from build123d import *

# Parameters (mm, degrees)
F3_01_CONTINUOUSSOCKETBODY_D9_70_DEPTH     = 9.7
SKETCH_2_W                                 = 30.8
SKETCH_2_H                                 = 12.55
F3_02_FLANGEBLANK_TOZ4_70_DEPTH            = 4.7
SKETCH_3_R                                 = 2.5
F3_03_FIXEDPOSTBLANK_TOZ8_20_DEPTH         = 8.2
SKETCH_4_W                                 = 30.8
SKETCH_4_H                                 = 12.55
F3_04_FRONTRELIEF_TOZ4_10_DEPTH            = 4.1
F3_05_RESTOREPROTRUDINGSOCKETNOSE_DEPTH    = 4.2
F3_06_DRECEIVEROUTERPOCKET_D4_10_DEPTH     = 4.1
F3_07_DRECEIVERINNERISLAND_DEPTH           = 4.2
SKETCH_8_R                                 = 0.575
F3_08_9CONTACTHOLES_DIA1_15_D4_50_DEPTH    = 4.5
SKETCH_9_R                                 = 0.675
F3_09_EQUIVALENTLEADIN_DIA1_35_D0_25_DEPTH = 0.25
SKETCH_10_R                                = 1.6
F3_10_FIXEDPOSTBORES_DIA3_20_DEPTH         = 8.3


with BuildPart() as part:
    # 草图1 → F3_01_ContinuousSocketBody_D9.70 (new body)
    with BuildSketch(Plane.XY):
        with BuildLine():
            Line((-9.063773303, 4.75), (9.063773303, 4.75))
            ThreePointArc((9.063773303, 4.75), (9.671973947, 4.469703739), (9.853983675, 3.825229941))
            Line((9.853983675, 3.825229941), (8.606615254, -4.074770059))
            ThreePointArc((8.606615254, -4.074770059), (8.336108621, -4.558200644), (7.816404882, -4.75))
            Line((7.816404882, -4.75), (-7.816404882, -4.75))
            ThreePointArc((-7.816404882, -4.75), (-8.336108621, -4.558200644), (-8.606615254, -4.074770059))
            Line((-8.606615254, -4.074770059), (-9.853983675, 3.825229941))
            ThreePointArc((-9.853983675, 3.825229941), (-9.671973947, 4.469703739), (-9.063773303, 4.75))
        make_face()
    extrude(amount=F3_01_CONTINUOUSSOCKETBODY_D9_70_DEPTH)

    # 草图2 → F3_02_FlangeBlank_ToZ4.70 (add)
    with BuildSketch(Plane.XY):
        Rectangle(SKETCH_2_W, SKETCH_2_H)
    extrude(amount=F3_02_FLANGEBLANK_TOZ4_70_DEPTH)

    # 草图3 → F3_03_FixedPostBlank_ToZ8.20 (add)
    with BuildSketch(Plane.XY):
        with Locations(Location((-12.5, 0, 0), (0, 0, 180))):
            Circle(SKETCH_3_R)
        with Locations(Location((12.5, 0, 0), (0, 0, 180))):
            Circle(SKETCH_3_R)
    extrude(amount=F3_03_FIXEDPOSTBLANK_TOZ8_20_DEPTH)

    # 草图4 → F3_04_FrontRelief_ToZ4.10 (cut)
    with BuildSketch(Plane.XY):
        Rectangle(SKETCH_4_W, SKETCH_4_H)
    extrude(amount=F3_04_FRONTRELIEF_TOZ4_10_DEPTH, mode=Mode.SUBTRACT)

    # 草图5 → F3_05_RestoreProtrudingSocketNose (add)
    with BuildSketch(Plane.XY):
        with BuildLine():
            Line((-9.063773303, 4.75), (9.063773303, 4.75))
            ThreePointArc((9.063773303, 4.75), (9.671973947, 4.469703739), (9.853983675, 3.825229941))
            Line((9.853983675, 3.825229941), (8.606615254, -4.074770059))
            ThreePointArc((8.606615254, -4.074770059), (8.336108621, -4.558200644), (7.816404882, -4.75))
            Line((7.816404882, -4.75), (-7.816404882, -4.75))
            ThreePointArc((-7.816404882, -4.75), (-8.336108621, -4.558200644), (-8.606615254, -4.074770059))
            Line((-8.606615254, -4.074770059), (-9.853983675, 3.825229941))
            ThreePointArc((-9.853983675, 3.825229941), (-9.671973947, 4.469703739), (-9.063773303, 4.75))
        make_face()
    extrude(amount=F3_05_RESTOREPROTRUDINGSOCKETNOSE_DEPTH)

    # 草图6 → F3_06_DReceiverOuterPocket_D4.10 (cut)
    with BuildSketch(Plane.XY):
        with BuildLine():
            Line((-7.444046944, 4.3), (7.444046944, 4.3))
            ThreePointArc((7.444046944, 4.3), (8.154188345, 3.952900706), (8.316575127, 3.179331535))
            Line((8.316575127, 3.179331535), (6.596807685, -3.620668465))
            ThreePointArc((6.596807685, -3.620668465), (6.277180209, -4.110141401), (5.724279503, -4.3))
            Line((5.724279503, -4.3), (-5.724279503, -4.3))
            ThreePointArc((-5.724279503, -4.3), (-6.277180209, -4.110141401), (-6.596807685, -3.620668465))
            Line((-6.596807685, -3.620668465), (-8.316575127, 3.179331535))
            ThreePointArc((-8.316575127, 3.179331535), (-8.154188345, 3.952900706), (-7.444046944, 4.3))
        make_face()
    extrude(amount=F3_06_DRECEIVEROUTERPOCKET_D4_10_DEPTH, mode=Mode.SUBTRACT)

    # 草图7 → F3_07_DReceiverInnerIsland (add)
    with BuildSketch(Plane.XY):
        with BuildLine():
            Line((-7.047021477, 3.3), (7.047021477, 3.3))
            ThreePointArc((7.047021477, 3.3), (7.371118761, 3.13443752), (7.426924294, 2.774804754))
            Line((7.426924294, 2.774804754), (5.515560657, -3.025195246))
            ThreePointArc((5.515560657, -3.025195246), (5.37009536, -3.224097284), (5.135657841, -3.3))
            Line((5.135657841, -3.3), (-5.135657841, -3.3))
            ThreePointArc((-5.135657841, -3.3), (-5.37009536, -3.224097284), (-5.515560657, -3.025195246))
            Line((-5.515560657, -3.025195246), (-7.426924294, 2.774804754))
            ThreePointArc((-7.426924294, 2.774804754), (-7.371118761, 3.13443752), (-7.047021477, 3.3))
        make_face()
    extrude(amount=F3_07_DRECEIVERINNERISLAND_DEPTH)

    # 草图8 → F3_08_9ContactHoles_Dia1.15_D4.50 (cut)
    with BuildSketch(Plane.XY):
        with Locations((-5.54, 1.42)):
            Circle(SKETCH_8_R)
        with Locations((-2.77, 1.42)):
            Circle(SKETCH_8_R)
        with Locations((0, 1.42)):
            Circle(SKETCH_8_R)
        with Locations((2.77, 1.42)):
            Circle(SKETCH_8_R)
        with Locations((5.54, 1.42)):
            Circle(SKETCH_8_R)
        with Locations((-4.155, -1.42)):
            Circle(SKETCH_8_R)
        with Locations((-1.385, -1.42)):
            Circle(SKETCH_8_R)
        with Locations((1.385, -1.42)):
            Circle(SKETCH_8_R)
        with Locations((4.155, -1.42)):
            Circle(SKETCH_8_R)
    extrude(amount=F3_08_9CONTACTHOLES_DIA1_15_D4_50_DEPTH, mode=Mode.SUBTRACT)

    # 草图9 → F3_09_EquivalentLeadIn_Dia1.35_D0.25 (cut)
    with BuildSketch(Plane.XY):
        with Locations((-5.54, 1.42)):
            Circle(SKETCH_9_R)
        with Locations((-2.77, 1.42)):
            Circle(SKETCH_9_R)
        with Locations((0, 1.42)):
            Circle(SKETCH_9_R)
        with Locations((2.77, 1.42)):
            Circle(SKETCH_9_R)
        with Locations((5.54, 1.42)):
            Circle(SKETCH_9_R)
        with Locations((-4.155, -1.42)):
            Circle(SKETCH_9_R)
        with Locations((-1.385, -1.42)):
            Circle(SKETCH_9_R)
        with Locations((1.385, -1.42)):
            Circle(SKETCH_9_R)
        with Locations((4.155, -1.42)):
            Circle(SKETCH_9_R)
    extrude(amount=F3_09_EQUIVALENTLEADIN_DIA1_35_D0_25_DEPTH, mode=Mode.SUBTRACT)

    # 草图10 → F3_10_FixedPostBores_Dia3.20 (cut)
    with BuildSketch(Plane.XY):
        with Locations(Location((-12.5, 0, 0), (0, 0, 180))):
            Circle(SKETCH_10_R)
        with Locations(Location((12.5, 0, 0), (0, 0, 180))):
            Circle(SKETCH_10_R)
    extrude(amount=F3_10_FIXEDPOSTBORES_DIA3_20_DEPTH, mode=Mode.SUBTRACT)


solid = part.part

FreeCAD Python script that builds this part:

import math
import FreeCAD as App
import Part
import Sketcher


def add_polygon(sketch, points):
    """Adds a closed chain of lines whose ends are joined by coincident constraints."""
    first, n = sketch.GeometryCount, len(points)
    for a, b in zip(points, points[1:] + points[:1]):
        sketch.addGeometry(Part.LineSegment(App.Vector(*a, 0), App.Vector(*b, 0)), False)
    for i in range(n):
        sketch.addConstraint(Sketcher.Constraint("Coincident", first + i, 2, first + (i + 1) % n, 1))

doc = App.newDocument("Part")
params = doc.addObject("Spreadsheet::Sheet", "Params")
for row, (alias, value) in enumerate([
    ("sketch1_radius", "0.8 mm"),
    ("pad1_length", "9.7 mm"),
    ("sketch2_width", "30.8 mm"),
    ("sketch2_height", "12.55 mm"),
    ("pad2_length", "4.7 mm"),
    ("sketch3_diameter", "5 mm"),
    ("pad3_length", "8.2 mm"),
    ("sketch4_width", "30.8 mm"),
    ("sketch4_height", "12.55 mm"),
    ("pocket1_length", "4.1 mm"),
    ("sketch5_radius", "0.8 mm"),
    ("pad4_length", "4.2 mm"),
    ("sketch6_radius", "0.9 mm"),
    ("pocket2_length", "4.1 mm"),
    ("sketch7_radius", "0.4 mm"),
    ("pad5_length", "4.2 mm"),
    ("sketch8_diameter", "1.15 mm"),
    ("pocket3_length", "4.5 mm"),
    ("sketch9_diameter", "1.35 mm"),
    ("pocket4_length", "0.25 mm"),
    ("sketch10_diameter", "3.2 mm"),
    ("pocket5_length", "8.3 mm"),
], start=1):
    params.set(f"A{row}", alias)
    params.set(f"B{row}", "=" + value)
    params.setAlias(f"B{row}", alias)

body = doc.addObject("PartDesign::Body", "Body")

sketch1 = body.newObject("Sketcher::SketchObject", "Sketch")
sketch1.AttachmentSupport = (doc.getObject("XY_Plane"), [""])
sketch1.MapMode = "FlatFace"
sketch1.addGeometry(Part.LineSegment(App.Vector(9.063773, 4.75, 0), App.Vector(-9.063773, 4.75, 0)), False)
sketch1.addGeometry(Part.ArcOfCircle(Part.Circle(App.Vector(-9.063773, 3.95, 0), App.Vector(0, 0, 1), 0.8), math.radians(90), math.radians(188.972627)), False)
sketch1.addGeometry(Part.LineSegment(App.Vector(-9.853984, 3.82523, 0), App.Vector(-8.606615, -4.07477, 0)), False)
sketch1.addGeometry(Part.ArcOfCircle(Part.Circle(App.Vector(-7.816405, -3.95, 0), App.Vector(0, 0, 1), 0.8), math.radians(-171.027373), math.radians(-90)), False)
sketch1.addGeometry(Part.LineSegment(App.Vector(-7.816405, -4.75, 0), App.Vector(7.816405, -4.75, 0)), False)
sketch1.addGeometry(Part.ArcOfCircle(Part.Circle(App.Vector(7.816405, -3.95, 0), App.Vector(0, 0, 1), 0.8), math.radians(-90), math.radians(-8.972627)), False)
sketch1.addGeometry(Part.LineSegment(App.Vector(8.606615, -4.07477, 0), App.Vector(9.853984, 3.82523, 0)), False)
sketch1.addGeometry(Part.ArcOfCircle(Part.Circle(App.Vector(9.063773, 3.95, 0), App.Vector(0, 0, 1), 0.8), math.radians(-8.972627), math.radians(90)), False)
sketch1.addConstraint(Sketcher.Constraint("Tangent", 0, 2, 1, 1))
sketch1.addConstraint(Sketcher.Constraint("Tangent", 1, 2, 2, 1))
sketch1.addConstraint(Sketcher.Constraint("Tangent", 2, 2, 3, 1))
sketch1.addConstraint(Sketcher.Constraint("Tangent", 3, 2, 4, 1))
sketch1.addConstraint(Sketcher.Constraint("Tangent", 4, 2, 5, 1))
sketch1.addConstraint(Sketcher.Constraint("Tangent", 5, 2, 6, 1))
sketch1.addConstraint(Sketcher.Constraint("Tangent", 6, 2, 7, 1))
sketch1.addConstraint(Sketcher.Constraint("Tangent", 7, 2, 0, 1))
sketch1.addConstraint(Sketcher.Constraint("Horizontal", 0))
sketch1.addConstraint(Sketcher.Constraint("Horizontal", 4))
sketch1.addConstraint(Sketcher.Constraint("Equal", 1, 3))
sketch1.addConstraint(Sketcher.Constraint("Equal", 3, 5))
sketch1.addConstraint(Sketcher.Constraint("Equal", 5, 7))
sketch1.addConstraint(Sketcher.Constraint("Symmetric", 2, 2, 5, 2, -2))
sketch1.addConstraint(Sketcher.Constraint("Radius", 1, 0.8))
sketch1.addConstraint(Sketcher.Constraint("DistanceY", 3, 3, 1, 3, 7.9))
sketch1.addConstraint(Sketcher.Constraint("DistanceY", -1, 1, 1, 3, 3.95))
sketch1.addConstraint(Sketcher.Constraint("DistanceX", 4, 1, 4, 2, 15.63281))
sketch1.addConstraint(Sketcher.Constraint("Distance", 2, 7.99787))
sketch1.setExpression("Constraints[14]", "Params.sketch1_radius")
pad1 = body.newObject("PartDesign::Pad", "Pad")
pad1.Profile = sketch1
pad1.setExpression("Length", "Params.pad1_length")

sketch2 = body.newObject("Sketcher::SketchObject", "Sketch001")
sketch2.AttachmentSupport = (doc.getObject("XY_Plane"), [""])
sketch2.MapMode = "FlatFace"
add_polygon(sketch2, [(-15.4, 6.275), (-15.4, -6.275), (15.4, -6.275), (15.4, 6.275)])
sketch2.addConstraint(Sketcher.Constraint("Vertical", 0))
sketch2.addConstraint(Sketcher.Constraint("Horizontal", 1))
sketch2.addConstraint(Sketcher.Constraint("Vertical", 2))
sketch2.addConstraint(Sketcher.Constraint("Horizontal", 3))
sketch2.addConstraint(Sketcher.Constraint("Symmetric", 0, 2, 2, 2, -1, 1))
sketch2.addConstraint(Sketcher.Constraint("DistanceX", 1, 1, 1, 2, 30.8))
sketch2.addConstraint(Sketcher.Constraint("DistanceY", 0, 2, 0, 1, 12.55))
sketch2.setExpression("Constraints[9]", "Params.sketch2_width")
sketch2.setExpression("Constraints[10]", "Params.sketch2_height")
pad2 = body.newObject("PartDesign::Pad", "Pad001")
pad2.Profile = sketch2
pad2.setExpression("Length", "Params.pad2_length")

sketch3 = body.newObject("Sketcher::SketchObject", "Sketch002")
sketch3.AttachmentSupport = (doc.getObject("XY_Plane"), [""])
sketch3.MapMode = "FlatFace"
sketch3.addGeometry(Part.Circle(App.Vector(-12.5, 0, 0), App.Vector(0, 0, 1), 2.5), False)
sketch3.addGeometry(Part.Circle(App.Vector(12.5, 0, 0), App.Vector(0, 0, 1), 2.5), False)
sketch3.addConstraint(Sketcher.Constraint("Equal", 0, 1))
sketch3.addConstraint(Sketcher.Constraint("Symmetric", 0, 3, 1, 3, -1, 1))
sketch3.addConstraint(Sketcher.Constraint("PointOnObject", 0, 3, -1))
sketch3.addConstraint(Sketcher.Constraint("Diameter", 0, 5.0))
sketch3.addConstraint(Sketcher.Constraint("DistanceX", 0, 3, 1, 3, 25.0))
sketch3.setExpression("Constraints[3]", "Params.sketch3_diameter")
pad3 = body.newObject("PartDesign::Pad", "Pad002")
pad3.Profile = sketch3
pad3.setExpression("Length", "Params.pad3_length")

sketch4 = body.newObject("Sketcher::SketchObject", "Sketch003")
sketch4.AttachmentSupport = (doc.getObject("XY_Plane"), [""])
sketch4.MapMode = "FlatFace"
add_polygon(sketch4, [(-15.4, 6.275), (-15.4, -6.275), (15.4, -6.275), (15.4, 6.275)])
sketch4.addConstraint(Sketcher.Constraint("Vertical", 0))
sketch4.addConstraint(Sketcher.Constraint("Horizontal", 1))
sketch4.addConstraint(Sketcher.Constraint("Vertical", 2))
sketch4.addConstraint(Sketcher.Constraint("Horizontal", 3))
sketch4.addConstraint(Sketcher.Constraint("Symmetric", 0, 2, 2, 2, -1, 1))
sketch4.addConstraint(Sketcher.Constraint("DistanceX", 1, 1, 1, 2, 30.8))
sketch4.addConstraint(Sketcher.Constraint("DistanceY", 0, 2, 0, 1, 12.55))
sketch4.setExpression("Constraints[9]", "Params.sketch4_width")
sketch4.setExpression("Constraints[10]", "Params.sketch4_height")
pocket1 = body.newObject("PartDesign::Pocket", "Pocket")
pocket1.Profile = sketch4
pocket1.setExpression("Length", "Params.pocket1_length")
pocket1.Reversed = True

sketch5 = body.newObject("Sketcher::SketchObject", "Sketch004")
sketch5.AttachmentSupport = (doc.getObject("XY_Plane"), [""])
sketch5.MapMode = "FlatFace"
sketch5.addGeometry(Part.LineSegment(App.Vector(9.063773, 4.75, 0), App.Vector(-9.063773, 4.75, 0)), False)
sketch5.addGeometry(Part.ArcOfCircle(Part.Circle(App.Vector(-9.063773, 3.95, 0), App.Vector(0, 0, 1), 0.8), math.radians(90), math.radians(188.972627)), False)
sketch5.addGeometry(Part.LineSegment(App.Vector(-9.853984, 3.82523, 0), App.Vector(-8.606615, -4.07477, 0)), False)
sketch5.addGeometry(Part.ArcOfCircle(Part.Circle(App.Vector(-7.816405, -3.95, 0), App.Vector(0, 0, 1), 0.8), math.radians(-171.027373), math.radians(-90)), False)
sketch5.addGeometry(Part.LineSegment(App.Vector(-7.816405, -4.75, 0), App.Vector(7.816405, -4.75, 0)), False)
sketch5.addGeometry(Part.ArcOfCircle(Part.Circle(App.Vector(7.816405, -3.95, 0), App.Vector(0, 0, 1), 0.8), math.radians(-90), math.radians(-8.972627)), False)
sketch5.addGeometry(Part.LineSegment(App.Vector(8.606615, -4.07477, 0), App.Vector(9.853984, 3.82523, 0)), False)
sketch5.addGeometry(Part.ArcOfCircle(Part.Circle(App.Vector(9.063773, 3.95, 0), App.Vector(0, 0, 1), 0.8), math.radians(-8.972627), math.radians(90)), False)
sketch5.addConstraint(Sketcher.Constraint("Tangent", 0, 2, 1, 1))
sketch5.addConstraint(Sketcher.Constraint("Tangent", 1, 2, 2, 1))
sketch5.addConstraint(Sketcher.Constraint("Tangent", 2, 2, 3, 1))
sketch5.addConstraint(Sketcher.Constraint("Tangent", 3, 2, 4, 1))
sketch5.addConstraint(Sketcher.Constraint("Tangent", 4, 2, 5, 1))
sketch5.addConstraint(Sketcher.Constraint("Tangent", 5, 2, 6, 1))
sketch5.addConstraint(Sketcher.Constraint("Tangent", 6, 2, 7, 1))
sketch5.addConstraint(Sketcher.Constraint("Tangent", 7, 2, 0, 1))
sketch5.addConstraint(Sketcher.Constraint("Horizontal", 0))
sketch5.addConstraint(Sketcher.Constraint("Horizontal", 4))
sketch5.addConstraint(Sketcher.Constraint("Equal", 1, 3))
sketch5.addConstraint(Sketcher.Constraint("Equal", 3, 5))
sketch5.addConstraint(Sketcher.Constraint("Equal", 5, 7))
sketch5.addConstraint(Sketcher.Constraint("Symmetric", 2, 2, 5, 2, -2))
sketch5.addConstraint(Sketcher.Constraint("Radius", 1, 0.8))
sketch5.addConstraint(Sketcher.Constraint("DistanceY", 3, 3, 1, 3, 7.9))
sketch5.addConstraint(Sketcher.Constraint("DistanceY", -1, 1, 1, 3, 3.95))
sketch5.addConstraint(Sketcher.Constraint("DistanceX", 4, 1, 4, 2, 15.63281))
sketch5.addConstraint(Sketcher.Constraint("Distance", 2, 7.99787))
sketch5.setExpression("Constraints[14]", "Params.sketch5_radius")
pad4 = body.newObject("PartDesign::Pad", "Pad003")
pad4.Profile = sketch5
pad4.setExpression("Length", "Params.pad4_length")

sketch6 = body.newObject("Sketcher::SketchObject", "Sketch005")
sketch6.AttachmentSupport = (doc.getObject("XY_Plane"), [""])
sketch6.MapMode = "FlatFace"
sketch6.addGeometry(Part.LineSegment(App.Vector(7.444047, 4.3, 0), App.Vector(-7.444047, 4.3, 0)), False)
sketch6.addGeometry(Part.ArcOfCircle(Part.Circle(App.Vector(-7.444047, 3.4, 0), App.Vector(0, 0, 1), 0.9), math.radians(90), math.radians(194.192896)), False)
sketch6.addGeometry(Part.LineSegment(App.Vector(-8.316575, 3.179332, 0), App.Vector(-6.596808, -3.620668, 0)), False)
sketch6.addGeometry(Part.ArcOfCircle(Part.Circle(App.Vector(-5.72428, -3.4, 0), App.Vector(0, 0, 1), 0.9), math.radians(-165.807104), math.radians(-90)), False)
sketch6.addGeometry(Part.LineSegment(App.Vector(-5.72428, -4.3, 0), App.Vector(5.72428, -4.3, 0)), False)
sketch6.addGeometry(Part.ArcOfCircle(Part.Circle(App.Vector(5.72428, -3.4, 0), App.Vector(0, 0, 1), 0.9), math.radians(-90), math.radians(-14.192896)), False)
sketch6.addGeometry(Part.LineSegment(App.Vector(6.596808, -3.620668, 0), App.Vector(8.316575, 3.179332, 0)), False)
sketch6.addGeometry(Part.ArcOfCircle(Part.Circle(App.Vector(7.444047, 3.4, 0), App.Vector(0, 0, 1), 0.9), math.radians(-14.192896), math.radians(90)), False)
sketch6.addConstraint(Sketcher.Constraint("Tangent", 0, 2, 1, 1))
sketch6.addConstraint(Sketcher.Constraint("Tangent", 1, 2, 2, 1))
sketch6.addConstraint(Sketcher.Constraint("Tangent", 2, 2, 3, 1))
sketch6.addConstraint(Sketcher.Constraint("Tangent", 3, 2, 4, 1))
sketch6.addConstraint(Sketcher.Constraint("Tangent", 4, 2, 5, 1))
sketch6.addConstraint(Sketcher.Constraint("Tangent", 5, 2, 6, 1))
sketch6.addConstraint(Sketcher.Constraint("Tangent", 6, 2, 7, 1))
sketch6.addConstraint(Sketcher.Constraint("Tangent", 7, 2, 0, 1))
sketch6.addConstraint(Sketcher.Constraint("Horizontal", 0))
sketch6.addConstraint(Sketcher.Constraint("Horizontal", 4))
sketch6.addConstraint(Sketcher.Constraint("Equal", 1, 3))
sketch6.addConstraint(Sketcher.Constraint("Equal", 3, 5))
sketch6.addConstraint(Sketcher.Constraint("Equal", 5, 7))
sketch6.addConstraint(Sketcher.Constraint("Symmetric", 2, 2, 5, 2, -2))
sketch6.addConstraint(Sketcher.Constraint("Radius", 1, 0.9))
sketch6.addConstraint(Sketcher.Constraint("DistanceY", -1, 1, 1, 3, 3.4))
sketch6.addConstraint(Sketcher.Constraint("DistanceY", 3, 3, -1, 1, 3.4))
sketch6.addConstraint(Sketcher.Constraint("Distance", 2, 7.0141))
sketch6.addConstraint(Sketcher.Constraint("DistanceX", 4, 1, 4, 2, 11.448559))
sketch6.setExpression("Constraints[14]", "Params.sketch6_radius")
pocket2 = body.newObject("PartDesign::Pocket", "Pocket001")
pocket2.Profile = sketch6
pocket2.setExpression("Length", "Params.pocket2_length")
pocket2.Reversed = True

sketch7 = body.newObject("Sketcher::SketchObject", "Sketch006")
sketch7.AttachmentSupport = (doc.getObject("XY_Plane"), [""])
sketch7.MapMode = "FlatFace"
sketch7.addGeometry(Part.LineSegment(App.Vector(7.047021, 3.3, 0), App.Vector(-7.047021, 3.3, 0)), False)
sketch7.addGeometry(Part.ArcOfCircle(Part.Circle(App.Vector(-7.047021, 2.9, 0), App.Vector(0, 0, 1), 0.4), math.radians(90), math.radians(198.239401)), False)
sketch7.addGeometry(Part.LineSegment(App.Vector(-7.426924, 2.774805, 0), App.Vector(-5.515561, -3.025195, 0)), False)
sketch7.addGeometry(Part.ArcOfCircle(Part.Circle(App.Vector(-5.135658, -2.9, 0), App.Vector(0, 0, 1), 0.4), math.radians(-161.760599), math.radians(-90)), False)
sketch7.addGeometry(Part.LineSegment(App.Vector(-5.135658, -3.3, 0), App.Vector(5.135658, -3.3, 0)), False)
sketch7.addGeometry(Part.ArcOfCircle(Part.Circle(App.Vector(5.135658, -2.9, 0), App.Vector(0, 0, 1), 0.4), math.radians(-90), math.radians(-18.239401)), False)
sketch7.addGeometry(Part.LineSegment(App.Vector(5.515561, -3.025195, 0), App.Vector(7.426924, 2.774805, 0)), False)
sketch7.addGeometry(Part.ArcOfCircle(Part.Circle(App.Vector(7.047021, 2.9, 0), App.Vector(0, 0, 1), 0.4), math.radians(-18.239401), math.radians(90)), False)
sketch7.addConstraint(Sketcher.Constraint("Tangent", 0, 2, 1, 1))
sketch7.addConstraint(Sketcher.Constraint("Tangent", 1, 2, 2, 1))
sketch7.addConstraint(Sketcher.Constraint("Tangent", 2, 2, 3, 1))
sketch7.addConstraint(Sketcher.Constraint("Tangent", 3, 2, 4, 1))
sketch7.addConstraint(Sketcher.Constraint("Tangent", 4, 2, 5, 1))
sketch7.addConstraint(Sketcher.Constraint("Tangent", 5, 2, 6, 1))
sketch7.addConstraint(Sketcher.Constraint("Tangent", 6, 2, 7, 1))
sketch7.addConstraint(Sketcher.Constraint("Tangent", 7, 2, 0, 1))
sketch7.addConstraint(Sketcher.Constraint("Horizontal", 0))
sketch7.addConstraint(Sketcher.Constraint("Horizontal", 4))
sketch7.addConstraint(Sketcher.Constraint("Equal", 1, 3))
sketch7.addConstraint(Sketcher.Constraint("Equal", 3, 5))
sketch7.addConstraint(Sketcher.Constraint("Equal", 5, 7))
sketch7.addConstraint(Sketcher.Constraint("Symmetric", 2, 2, 5, 2, -2))
sketch7.addConstraint(Sketcher.Constraint("Radius", 1, 0.4))
sketch7.addConstraint(Sketcher.Constraint("DistanceY", -1, 1, 1, 3, 2.9))
sketch7.addConstraint(Sketcher.Constraint("DistanceY", 3, 3, -1, 1, 2.9))
sketch7.addConstraint(Sketcher.Constraint("DistanceX", 0, 2, 0, 1, 14.094043))
sketch7.addConstraint(Sketcher.Constraint("DistanceX", 4, 1, 4, 2, 10.271316))
sketch7.setExpression("Constraints[14]", "Params.sketch7_radius")
pad5 = body.newObject("PartDesign::Pad", "Pad004")
pad5.Profile = sketch7
pad5.setExpression("Length", "Params.pad5_length")

sketch8 = body.newObject("Sketcher::SketchObject", "Sketch007")
sketch8.AttachmentSupport = (doc.getObject("XY_Plane"), [""])
sketch8.MapMode = "FlatFace"
sketch8.addGeometry(Part.Circle(App.Vector(-5.54, 1.42, 0), App.Vector(0, 0, 1), 0.575), False)
sketch8.addGeometry(Part.Circle(App.Vector(-2.77, 1.42, 0), App.Vector(0, 0, 1), 0.575), False)
sketch8.addGeometry(Part.Circle(App.Vector(0, 1.42, 0), App.Vector(0, 0, 1), 0.575), False)
sketch8.addGeometry(Part.Circle(App.Vector(2.77, 1.42, 0), App.Vector(0, 0, 1), 0.575), False)
sketch8.addGeometry(Part.Circle(App.Vector(5.54, 1.42, 0), App.Vector(0, 0, 1), 0.575), False)
sketch8.addGeometry(Part.Circle(App.Vector(-4.155, -1.42, 0), App.Vector(0, 0, 1), 0.575), False)
sketch8.addGeometry(Part.Circle(App.Vector(-1.385, -1.42, 0), App.Vector(0, 0, 1), 0.575), False)
sketch8.addGeometry(Part.Circle(App.Vector(1.385, -1.42, 0), App.Vector(0, 0, 1), 0.575), False)
sketch8.addGeometry(Part.Circle(App.Vector(4.155, -1.42, 0), App.Vector(0, 0, 1), 0.575), False)
sketch8.addConstraint(Sketcher.Constraint("Equal", 0, 1))
sketch8.addConstraint(Sketcher.Constraint("Equal", 1, 2))
sketch8.addConstraint(Sketcher.Constraint("Equal", 2, 3))
sketch8.addConstraint(Sketcher.Constraint("Equal", 3, 4))
sketch8.addConstraint(Sketcher.Constraint("Equal", 4, 5))
sketch8.addConstraint(Sketcher.Constraint("Equal", 5, 6))
sketch8.addConstraint(Sketcher.Constraint("Equal", 6, 7))
sketch8.addConstraint(Sketcher.Constraint("Equal", 7, 8))
sketch8.addConstraint(Sketcher.Constraint("Symmetric", 1, 3, 3, 3, -2))
sketch8.addConstraint(Sketcher.Constraint("Symmetric", 0, 3, 4, 3, -2))
sketch8.addConstraint(Sketcher.Constraint("Symmetric", 6, 3, 7, 3, -2))
sketch8.addConstraint(Sketcher.Constraint("Symmetric", 5, 3, 8, 3, -2))
sketch8.addConstraint(Sketcher.Constraint("PointOnObject", 2, 3, -2))
sketch8.addConstraint(Sketcher.Constraint("Horizontal", 0, 3, 1, 3))
sketch8.addConstraint(Sketcher.Constraint("Horizontal", 1, 3, 2, 3))
sketch8.addConstraint(Sketcher.Constraint("Horizontal", 5, 3, 6, 3))
sketch8.addConstraint(Sketcher.Constraint("Diameter", 0, 1.15))
sketch8.addConstraint(Sketcher.Constraint("DistanceX", 0, 3, -1, 1, 5.54))
sketch8.addConstraint(Sketcher.Constraint("DistanceY", -1, 1, 0, 3, 1.42))
sketch8.addConstraint(Sketcher.Constraint("DistanceX", 1, 3, -1, 1, 2.77))
sketch8.addConstraint(Sketcher.Constraint("DistanceY", 5, 3, -1, 1, 1.42))
sketch8.addConstraint(Sketcher.Constraint("DistanceX", 5, 3, 6, 3, 2.77))
sketch8.addConstraint(Sketcher.Constraint("DistanceX", 6, 3, 7, 3, 2.77))
sketch8.setExpression("Constraints[16]", "Params.sketch8_diameter")
pocket3 = body.newObject("PartDesign::Pocket", "Pocket002")
pocket3.Profile = sketch8
pocket3.setExpression("Length", "Params.pocket3_length")
pocket3.Reversed = True

sketch9 = body.newObject("Sketcher::SketchObject", "Sketch008")
sketch9.AttachmentSupport = (doc.getObject("XY_Plane"), [""])
sketch9.MapMode = "FlatFace"
sketch9.addGeometry(Part.Circle(App.Vector(-5.54, 1.42, 0), App.Vector(0, 0, 1), 0.675), False)
sketch9.addGeometry(Part.Circle(App.Vector(-2.77, 1.42, 0), App.Vector(0, 0, 1), 0.675), False)
sketch9.addGeometry(Part.Circle(App.Vector(0, 1.42, 0), App.Vector(0, 0, 1), 0.675), False)
sketch9.addGeometry(Part.Circle(App.Vector(2.77, 1.42, 0), App.Vector(0, 0, 1), 0.675), False)
sketch9.addGeometry(Part.Circle(App.Vector(5.54, 1.42, 0), App.Vector(0, 0, 1), 0.675), False)
sketch9.addGeometry(Part.Circle(App.Vector(-4.155, -1.42, 0), App.Vector(0, 0, 1), 0.675), False)
sketch9.addGeometry(Part.Circle(App.Vector(-1.385, -1.42, 0), App.Vector(0, 0, 1), 0.675), False)
sketch9.addGeometry(Part.Circle(App.Vector(1.385, -1.42, 0), App.Vector(0, 0, 1), 0.675), False)
sketch9.addGeometry(Part.Circle(App.Vector(4.155, -1.42, 0), App.Vector(0, 0, 1), 0.675), False)
sketch9.addConstraint(Sketcher.Constraint("Equal", 0, 1))
sketch9.addConstraint(Sketcher.Constraint("Equal", 1, 2))
sketch9.addConstraint(Sketcher.Constraint("Equal", 2, 3))
sketch9.addConstraint(Sketcher.Constraint("Equal", 3, 4))
sketch9.addConstraint(Sketcher.Constraint("Equal", 4, 5))
sketch9.addConstraint(Sketcher.Constraint("Equal", 5, 6))
sketch9.addConstraint(Sketcher.Constraint("Equal", 6, 7))
sketch9.addConstraint(Sketcher.Constraint("Equal", 7, 8))
sketch9.addConstraint(Sketcher.Constraint("Symmetric", 1, 3, 3, 3, -2))
sketch9.addConstraint(Sketcher.Constraint("Symmetric", 0, 3, 4, 3, -2))
sketch9.addConstraint(Sketcher.Constraint("Symmetric", 6, 3, 7, 3, -2))
sketch9.addConstraint(Sketcher.Constraint("Symmetric", 5, 3, 8, 3, -2))
sketch9.addConstraint(Sketcher.Constraint("PointOnObject", 2, 3, -2))
sketch9.addConstraint(Sketcher.Constraint("Horizontal", 0, 3, 1, 3))
sketch9.addConstraint(Sketcher.Constraint("Horizontal", 1, 3, 2, 3))
sketch9.addConstraint(Sketcher.Constraint("Horizontal", 5, 3, 6, 3))
sketch9.addConstraint(Sketcher.Constraint("Diameter", 0, 1.35))
sketch9.addConstraint(Sketcher.Constraint("DistanceX", 0, 3, -1, 1, 5.54))
sketch9.addConstraint(Sketcher.Constraint("DistanceY", -1, 1, 0, 3, 1.42))
sketch9.addConstraint(Sketcher.Constraint("DistanceX", 1, 3, -1, 1, 2.77))
sketch9.addConstraint(Sketcher.Constraint("DistanceY", 5, 3, -1, 1, 1.42))
sketch9.addConstraint(Sketcher.Constraint("DistanceX", 5, 3, 6, 3, 2.77))
sketch9.addConstraint(Sketcher.Constraint("DistanceX", 6, 3, 7, 3, 2.77))
sketch9.setExpression("Constraints[16]", "Params.sketch9_diameter")
pocket4 = body.newObject("PartDesign::Pocket", "Pocket003")
pocket4.Profile = sketch9
pocket4.setExpression("Length", "Params.pocket4_length")
pocket4.Reversed = True

sketch10 = body.newObject("Sketcher::SketchObject", "Sketch009")
sketch10.AttachmentSupport = (doc.getObject("XY_Plane"), [""])
sketch10.MapMode = "FlatFace"
sketch10.addGeometry(Part.Circle(App.Vector(-12.5, 0, 0), App.Vector(0, 0, 1), 1.6), False)
sketch10.addGeometry(Part.Circle(App.Vector(12.5, 0, 0), App.Vector(0, 0, 1), 1.6), False)
sketch10.addConstraint(Sketcher.Constraint("Equal", 0, 1))
sketch10.addConstraint(Sketcher.Constraint("Symmetric", 0, 3, 1, 3, -1, 1))
sketch10.addConstraint(Sketcher.Constraint("PointOnObject", 0, 3, -1))
sketch10.addConstraint(Sketcher.Constraint("Diameter", 0, 3.2))
sketch10.addConstraint(Sketcher.Constraint("DistanceX", 0, 3, 1, 3, 25.0))
sketch10.setExpression("Constraints[3]", "Params.sketch10_diameter")
pocket5 = body.newObject("PartDesign::Pocket", "Pocket004")
pocket5.Profile = sketch10
pocket5.setExpression("Length", "Params.pocket5_length")
pocket5.Reversed = True

doc.recompute()
